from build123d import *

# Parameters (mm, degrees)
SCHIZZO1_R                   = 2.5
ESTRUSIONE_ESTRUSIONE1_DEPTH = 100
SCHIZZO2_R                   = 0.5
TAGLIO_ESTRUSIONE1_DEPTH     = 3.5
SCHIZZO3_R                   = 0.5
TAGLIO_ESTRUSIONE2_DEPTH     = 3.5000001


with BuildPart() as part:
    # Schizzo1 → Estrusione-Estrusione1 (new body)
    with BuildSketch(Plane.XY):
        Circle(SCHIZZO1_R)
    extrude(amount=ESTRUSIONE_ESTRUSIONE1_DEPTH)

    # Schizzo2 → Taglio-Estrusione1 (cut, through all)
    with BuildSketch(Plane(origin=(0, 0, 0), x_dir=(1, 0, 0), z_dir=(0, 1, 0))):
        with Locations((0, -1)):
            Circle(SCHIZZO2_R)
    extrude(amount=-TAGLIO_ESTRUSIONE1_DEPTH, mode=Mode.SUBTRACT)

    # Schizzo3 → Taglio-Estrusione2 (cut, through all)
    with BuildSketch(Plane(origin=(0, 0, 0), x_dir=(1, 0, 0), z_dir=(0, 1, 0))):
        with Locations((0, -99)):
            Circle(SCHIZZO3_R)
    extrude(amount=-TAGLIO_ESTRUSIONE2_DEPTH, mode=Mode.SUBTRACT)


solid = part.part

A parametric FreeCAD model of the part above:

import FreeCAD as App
import Part
import Sketcher
Q = App.Units.Quantity

doc = App.newDocument("Part")
body = doc.addObject("PartDesign::Body", "Body")

sketch1 = body.newObject("Sketcher::SketchObject", "Sketch")
sketch1.AttachmentSupport = (doc.getObject("XY_Plane"), [""])
sketch1.MapMode = "FlatFace"
sketch1.addGeometry(Part.Circle(App.Vector(0, 0, 0), App.Vector(0, 0, 1), 2.5), False)
sketch1.addConstraint([
    Sketcher.Constraint("Coincident", 0, 3, -1, 1),
    Sketcher.Constraint("Diameter", 0, Q("5 mm")),
])
pad1 = body.newObject("PartDesign::Pad", "Pad")
pad1.Profile = sketch1
pad1.Length = 100

sketch2 = body.newObject("Sketcher::SketchObject", "Sketch001")
sketch2.AttachmentSupport = (doc.getObject("XZ_Plane"), [""])
sketch2.MapMode = "FlatFace"
sketch2.addGeometry(Part.Circle(App.Vector(0, 1, 0), App.Vector(0, 0, 1), 0.5), False)
sketch2.addConstraint([
    Sketcher.Constraint("PointOnObject", 0, 3, -2),
    Sketcher.Constraint("Diameter", 0, Q("1 mm")),
    Sketcher.Constraint("DistanceY", -1, 1, 0, 3, Q("1 mm")),
])
pocket1 = body.newObject("PartDesign::Pocket", "Pocket")
pocket1.Profile = sketch2
pocket1.Type = "ThroughAll"
pocket1.Reversed = True

sketch3 = body.newObject("Sketcher::SketchObject", "Sketch002")
sketch3.AttachmentSupport = (doc.getObject("XZ_Plane"), [""])
sketch3.MapMode = "FlatFace"
sketch3.addGeometry(Part.Circle(App.Vector(0, 99, 0), App.Vector(0, 0, 1), 0.5), False)
sketch3.addConstraint([
    Sketcher.Constraint("PointOnObject", 0, 3, -2),
    Sketcher.Constraint("Diameter", 0, Q("1 mm")),
    Sketcher.Constraint("DistanceY", -1, 1, 0, 3, Q("99 mm")),
])
pocket2 = body.newObject("PartDesign::Pocket", "Pocket001")
pocket2.Profile = sketch3
pocket2.Type = "ThroughAll"
pocket2.Reversed = True

doc.recompute()
